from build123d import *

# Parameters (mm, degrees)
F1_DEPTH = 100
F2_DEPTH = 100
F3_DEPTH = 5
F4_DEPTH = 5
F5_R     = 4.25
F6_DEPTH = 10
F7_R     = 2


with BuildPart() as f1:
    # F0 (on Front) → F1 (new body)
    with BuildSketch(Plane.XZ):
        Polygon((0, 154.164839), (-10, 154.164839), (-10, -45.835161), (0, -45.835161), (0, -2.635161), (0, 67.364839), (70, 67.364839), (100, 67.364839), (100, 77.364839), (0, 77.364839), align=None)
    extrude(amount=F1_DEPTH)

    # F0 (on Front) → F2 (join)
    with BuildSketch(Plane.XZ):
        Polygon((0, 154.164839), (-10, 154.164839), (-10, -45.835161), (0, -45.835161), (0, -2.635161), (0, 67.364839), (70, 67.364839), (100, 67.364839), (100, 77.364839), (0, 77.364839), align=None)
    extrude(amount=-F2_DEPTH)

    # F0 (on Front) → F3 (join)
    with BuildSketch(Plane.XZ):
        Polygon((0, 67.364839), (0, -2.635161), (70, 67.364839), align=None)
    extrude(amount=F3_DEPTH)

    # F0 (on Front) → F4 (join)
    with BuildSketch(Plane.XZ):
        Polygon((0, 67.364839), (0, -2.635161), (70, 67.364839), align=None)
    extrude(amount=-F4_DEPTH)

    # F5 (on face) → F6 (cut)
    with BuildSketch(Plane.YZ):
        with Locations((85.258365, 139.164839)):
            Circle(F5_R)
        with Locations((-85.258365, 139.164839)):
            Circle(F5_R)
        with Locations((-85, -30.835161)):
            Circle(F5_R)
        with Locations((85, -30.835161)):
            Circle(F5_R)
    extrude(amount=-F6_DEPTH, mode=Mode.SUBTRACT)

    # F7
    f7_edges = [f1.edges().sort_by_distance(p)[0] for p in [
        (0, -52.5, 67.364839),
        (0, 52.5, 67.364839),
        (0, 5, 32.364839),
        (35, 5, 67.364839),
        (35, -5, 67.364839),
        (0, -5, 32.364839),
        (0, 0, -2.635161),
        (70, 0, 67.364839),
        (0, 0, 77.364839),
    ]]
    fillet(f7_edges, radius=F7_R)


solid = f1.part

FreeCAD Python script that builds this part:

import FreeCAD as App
import Part
import Sketcher


def edges_at(feature, points):
    """Names of the edges that pass closest to the given points."""
    edges = feature.Shape.Edges
    near = lambda p: min(range(len(edges)), key=lambda i: edges[i].distToShape(Part.Vertex(*p))[0])
    return sorted({f"Edge{near(p) + 1}" for p in points})


def add_polygon(sketch, points):
    """Adds a closed chain of lines whose ends are joined by coincident constraints."""
    first, n = sketch.GeometryCount, len(points)
    for a, b in zip(points, points[1:] + points[:1]):
        sketch.addGeometry(Part.LineSegment(App.Vector(*a, 0), App.Vector(*b, 0)), False)
    for i in range(n):
        sketch.addConstraint(Sketcher.Constraint("Coincident", first + i, 2, first + (i + 1) % n, 1))

doc = App.newDocument("Part")
body = doc.addObject("PartDesign::Body", "Body")

# Sketch on XZ plane
sketch1 = body.newObject("Sketcher::SketchObject", "Sketch")
sketch1.AttachmentSupport = (doc.getObject("XZ_Plane"), [""])
sketch1.MapMode = "FlatFace"
add_polygon(sketch1, [(0, 154.164839), (-10, 154.164839), (-10, -45.835161), (0, -45.835161), (0, 67.364839), (100, 67.364839), (100, 77.364839), (0, 77.364839)])  # lines 0-7
sketch1.addConstraint(Sketcher.Constraint("Horizontal", 0))
sketch1.addConstraint(Sketcher.Constraint("Vertical", 1))
sketch1.addConstraint(Sketcher.Constraint("Horizontal", 2))
sketch1.addConstraint(Sketcher.Constraint("Vertical", 3))
sketch1.addConstraint(Sketcher.Constraint("Horizontal", 4))
sketch1.addConstraint(Sketcher.Constraint("Vertical", 5))
sketch1.addConstraint(Sketcher.Constraint("Horizontal", 6))
sketch1.addConstraint(Sketcher.Constraint("Vertical", 7))
sketch1.addConstraint(Sketcher.Constraint("PointOnObject", 2, 2, -2))
sketch1.addConstraint(Sketcher.Constraint("PointOnObject", 6, 2, -2))
sketch1.addConstraint(Sketcher.Constraint("Equal", 2, 5))
sketch1.addConstraint(Sketcher.Constraint("DistanceX", 0, 2, 0, 1, 10.0))
sketch1.addConstraint(Sketcher.Constraint("DistanceX", 4, 1, 4, 2, 100.0))
sketch1.addConstraint(Sketcher.Constraint("DistanceY", 1, 2, 1, 1, 200.0))
sketch1.addConstraint(Sketcher.Constraint("DistanceY", 3, 1, 3, 2, 113.2))
sketch1.addConstraint(Sketcher.Constraint("DistanceY", -1, 1, 0, 2, 154.164839))
pad1 = body.newObject("PartDesign::Pad", "Pad")
pad1.Profile = sketch1
pad1.Length = 100

# Sketch on XZ plane
sketch2 = body.newObject("Sketcher::SketchObject", "Sketch001")
sketch2.AttachmentSupport = (doc.getObject("XZ_Plane"), [""])
sketch2.MapMode = "FlatFace"
add_polygon(sketch2, [(0, 154.164839), (-10, 154.164839), (-10, -45.835161), (0, -45.835161), (0, 67.364839), (100, 67.364839), (100, 77.364839), (0, 77.364839)])  # lines 0-7
sketch2.addConstraint(Sketcher.Constraint("Horizontal", 0))
sketch2.addConstraint(Sketcher.Constraint("Vertical", 1))
sketch2.addConstraint(Sketcher.Constraint("Horizontal", 2))
sketch2.addConstraint(Sketcher.Constraint("Vertical", 3))
sketch2.addConstraint(Sketcher.Constraint("Horizontal", 4))
sketch2.addConstraint(Sketcher.Constraint("Vertical", 5))
sketch2.addConstraint(Sketcher.Constraint("Horizontal", 6))
sketch2.addConstraint(Sketcher.Constraint("Vertical", 7))
sketch2.addConstraint(Sketcher.Constraint("PointOnObject", 2, 2, -2))
sketch2.addConstraint(Sketcher.Constraint("PointOnObject", 6, 2, -2))
sketch2.addConstraint(Sketcher.Constraint("Equal", 2, 5))
sketch2.addConstraint(Sketcher.Constraint("DistanceX", 0, 2, 0, 1, 10.0))
sketch2.addConstraint(Sketcher.Constraint("DistanceX", 4, 1, 4, 2, 100.0))
sketch2.addConstraint(Sketcher.Constraint("DistanceY", 1, 2, 1, 1, 200.0))
sketch2.addConstraint(Sketcher.Constraint("DistanceY", 3, 1, 3, 2, 113.2))
sketch2.addConstraint(Sketcher.Constraint("DistanceY", -1, 1, 0, 2, 154.164839))
pad2 = body.newObject("PartDesign::Pad", "Pad001")
pad2.Profile = sketch2
pad2.Length = 100
pad2.Reversed = True

# Sketch on XZ plane
sketch3 = body.newObject("Sketcher::SketchObject", "Sketch002")
sketch3.AttachmentSupport = (doc.getObject("XZ_Plane"), [""])
sketch3.MapMode = "FlatFace"
add_polygon(sketch3, [(0, 67.364839), (0, -2.635161), (70, 67.364839)])  # lines 0-2
sketch3.addConstraint(Sketcher.Constraint("Vertical", 0))
sketch3.addConstraint(Sketcher.Constraint("Horizontal", 2))
sketch3.addConstraint(Sketcher.Constraint("PointOnObject", 0, 2, -2))
sketch3.addConstraint(Sketcher.Constraint("Equal", 2, 0))
sketch3.addConstraint(Sketcher.Constraint("DistanceX", 2, 2, 2, 1, 70.0))
sketch3.addConstraint(Sketcher.Constraint("DistanceY", 0, 2, -1, 1, 2.635161))
pad3 = body.newObject("PartDesign::Pad", "Pad002")
pad3.Profile = sketch3
pad3.Length = 5

# Sketch on XZ plane
sketch4 = body.newObject("Sketcher::SketchObject", "Sketch003")
sketch4.AttachmentSupport = (doc.getObject("XZ_Plane"), [""])
sketch4.MapMode = "FlatFace"
add_polygon(sketch4, [(0, 67.364839), (0, -2.635161), (70, 67.364839)])  # lines 0-2
sketch4.addConstraint(Sketcher.Constraint("Vertical", 0))
sketch4.addConstraint(Sketcher.Constraint("Horizontal", 2))
sketch4.addConstraint(Sketcher.Constraint("PointOnObject", 0, 2, -2))
sketch4.addConstraint(Sketcher.Constraint("Equal", 2, 0))
sketch4.addConstraint(Sketcher.Constraint("DistanceX", 2, 2, 2, 1, 70.0))
sketch4.addConstraint(Sketcher.Constraint("DistanceY", 0, 2, -1, 1, 2.635161))
pad4 = body.newObject("PartDesign::Pad", "Pad003")
pad4.Profile = sketch4
pad4.Length = 5
pad4.Reversed = True

# Sketch on YZ plane
sketch5 = body.newObject("Sketcher::SketchObject", "Sketch004")
sketch5.AttachmentSupport = (doc.getObject("YZ_Plane"), [""])
sketch5.MapMode = "FlatFace"
sketch5.addGeometry(Part.Circle(App.Vector(85.258365, 139.164839, 0), App.Vector(0, 0, 1), 4.25), False)
sketch5.addGeometry(Part.Circle(App.Vector(-85.258365, 139.164839, 0), App.Vector(0, 0, 1), 4.25), False)
sketch5.addGeometry(Part.Circle(App.Vector(-85, -30.835161, 0), App.Vector(0, 0, 1), 4.25), False)
sketch5.addGeometry(Part.Circle(App.Vector(85, -30.835161, 0), App.Vector(0, 0, 1), 4.25), False)
sketch5.addConstraint(Sketcher.Constraint("Equal", 0, 1))
sketch5.addConstraint(Sketcher.Constraint("Equal", 1, 2))
sketch5.addConstraint(Sketcher.Constraint("Equal", 2, 3))
sketch5.addConstraint(Sketcher.Constraint("Symmetric", 0, 3, 1, 3, -2))
sketch5.addConstraint(Sketcher.Constraint("Symmetric", 2, 3, 3, 3, -2))
sketch5.addConstraint(Sketcher.Constraint("Diameter", 0, 8.5))
sketch5.addConstraint(Sketcher.Constraint("DistanceX", 2, 3, -1, 1, 85.0))
sketch5.addConstraint(Sketcher.Constraint("DistanceY", 2, 3, 1, 3, 170.0))
sketch5.addConstraint(Sketcher.Constraint("DistanceY", -1, 1, 0, 3, 139.164839))
sketch5.addConstraint(Sketcher.Constraint("DistanceX", 1, 3, 0, 3, 170.51673))
pocket1 = body.newObject("PartDesign::Pocket", "Pocket")
pocket1.Profile = sketch5
pocket1.Length = 10
doc.recompute()

fillet = body.newObject("PartDesign::Fillet", "Fillet")
fillet.Base = (pocket1, edges_at(pocket1, [
    (0, -52.5, 67.365),
    (0, 52.5, 67.365),
    (0, 5, 32.365),
    (35, 5, 67.365),
    (35, -5, 67.365),
    (0, -5, 32.365),
    (0, 0, -2.635),
    (70, 0, 67.365),
    (0, 0, 77.365),
]))
fillet.Radius = 2

doc.recompute()
